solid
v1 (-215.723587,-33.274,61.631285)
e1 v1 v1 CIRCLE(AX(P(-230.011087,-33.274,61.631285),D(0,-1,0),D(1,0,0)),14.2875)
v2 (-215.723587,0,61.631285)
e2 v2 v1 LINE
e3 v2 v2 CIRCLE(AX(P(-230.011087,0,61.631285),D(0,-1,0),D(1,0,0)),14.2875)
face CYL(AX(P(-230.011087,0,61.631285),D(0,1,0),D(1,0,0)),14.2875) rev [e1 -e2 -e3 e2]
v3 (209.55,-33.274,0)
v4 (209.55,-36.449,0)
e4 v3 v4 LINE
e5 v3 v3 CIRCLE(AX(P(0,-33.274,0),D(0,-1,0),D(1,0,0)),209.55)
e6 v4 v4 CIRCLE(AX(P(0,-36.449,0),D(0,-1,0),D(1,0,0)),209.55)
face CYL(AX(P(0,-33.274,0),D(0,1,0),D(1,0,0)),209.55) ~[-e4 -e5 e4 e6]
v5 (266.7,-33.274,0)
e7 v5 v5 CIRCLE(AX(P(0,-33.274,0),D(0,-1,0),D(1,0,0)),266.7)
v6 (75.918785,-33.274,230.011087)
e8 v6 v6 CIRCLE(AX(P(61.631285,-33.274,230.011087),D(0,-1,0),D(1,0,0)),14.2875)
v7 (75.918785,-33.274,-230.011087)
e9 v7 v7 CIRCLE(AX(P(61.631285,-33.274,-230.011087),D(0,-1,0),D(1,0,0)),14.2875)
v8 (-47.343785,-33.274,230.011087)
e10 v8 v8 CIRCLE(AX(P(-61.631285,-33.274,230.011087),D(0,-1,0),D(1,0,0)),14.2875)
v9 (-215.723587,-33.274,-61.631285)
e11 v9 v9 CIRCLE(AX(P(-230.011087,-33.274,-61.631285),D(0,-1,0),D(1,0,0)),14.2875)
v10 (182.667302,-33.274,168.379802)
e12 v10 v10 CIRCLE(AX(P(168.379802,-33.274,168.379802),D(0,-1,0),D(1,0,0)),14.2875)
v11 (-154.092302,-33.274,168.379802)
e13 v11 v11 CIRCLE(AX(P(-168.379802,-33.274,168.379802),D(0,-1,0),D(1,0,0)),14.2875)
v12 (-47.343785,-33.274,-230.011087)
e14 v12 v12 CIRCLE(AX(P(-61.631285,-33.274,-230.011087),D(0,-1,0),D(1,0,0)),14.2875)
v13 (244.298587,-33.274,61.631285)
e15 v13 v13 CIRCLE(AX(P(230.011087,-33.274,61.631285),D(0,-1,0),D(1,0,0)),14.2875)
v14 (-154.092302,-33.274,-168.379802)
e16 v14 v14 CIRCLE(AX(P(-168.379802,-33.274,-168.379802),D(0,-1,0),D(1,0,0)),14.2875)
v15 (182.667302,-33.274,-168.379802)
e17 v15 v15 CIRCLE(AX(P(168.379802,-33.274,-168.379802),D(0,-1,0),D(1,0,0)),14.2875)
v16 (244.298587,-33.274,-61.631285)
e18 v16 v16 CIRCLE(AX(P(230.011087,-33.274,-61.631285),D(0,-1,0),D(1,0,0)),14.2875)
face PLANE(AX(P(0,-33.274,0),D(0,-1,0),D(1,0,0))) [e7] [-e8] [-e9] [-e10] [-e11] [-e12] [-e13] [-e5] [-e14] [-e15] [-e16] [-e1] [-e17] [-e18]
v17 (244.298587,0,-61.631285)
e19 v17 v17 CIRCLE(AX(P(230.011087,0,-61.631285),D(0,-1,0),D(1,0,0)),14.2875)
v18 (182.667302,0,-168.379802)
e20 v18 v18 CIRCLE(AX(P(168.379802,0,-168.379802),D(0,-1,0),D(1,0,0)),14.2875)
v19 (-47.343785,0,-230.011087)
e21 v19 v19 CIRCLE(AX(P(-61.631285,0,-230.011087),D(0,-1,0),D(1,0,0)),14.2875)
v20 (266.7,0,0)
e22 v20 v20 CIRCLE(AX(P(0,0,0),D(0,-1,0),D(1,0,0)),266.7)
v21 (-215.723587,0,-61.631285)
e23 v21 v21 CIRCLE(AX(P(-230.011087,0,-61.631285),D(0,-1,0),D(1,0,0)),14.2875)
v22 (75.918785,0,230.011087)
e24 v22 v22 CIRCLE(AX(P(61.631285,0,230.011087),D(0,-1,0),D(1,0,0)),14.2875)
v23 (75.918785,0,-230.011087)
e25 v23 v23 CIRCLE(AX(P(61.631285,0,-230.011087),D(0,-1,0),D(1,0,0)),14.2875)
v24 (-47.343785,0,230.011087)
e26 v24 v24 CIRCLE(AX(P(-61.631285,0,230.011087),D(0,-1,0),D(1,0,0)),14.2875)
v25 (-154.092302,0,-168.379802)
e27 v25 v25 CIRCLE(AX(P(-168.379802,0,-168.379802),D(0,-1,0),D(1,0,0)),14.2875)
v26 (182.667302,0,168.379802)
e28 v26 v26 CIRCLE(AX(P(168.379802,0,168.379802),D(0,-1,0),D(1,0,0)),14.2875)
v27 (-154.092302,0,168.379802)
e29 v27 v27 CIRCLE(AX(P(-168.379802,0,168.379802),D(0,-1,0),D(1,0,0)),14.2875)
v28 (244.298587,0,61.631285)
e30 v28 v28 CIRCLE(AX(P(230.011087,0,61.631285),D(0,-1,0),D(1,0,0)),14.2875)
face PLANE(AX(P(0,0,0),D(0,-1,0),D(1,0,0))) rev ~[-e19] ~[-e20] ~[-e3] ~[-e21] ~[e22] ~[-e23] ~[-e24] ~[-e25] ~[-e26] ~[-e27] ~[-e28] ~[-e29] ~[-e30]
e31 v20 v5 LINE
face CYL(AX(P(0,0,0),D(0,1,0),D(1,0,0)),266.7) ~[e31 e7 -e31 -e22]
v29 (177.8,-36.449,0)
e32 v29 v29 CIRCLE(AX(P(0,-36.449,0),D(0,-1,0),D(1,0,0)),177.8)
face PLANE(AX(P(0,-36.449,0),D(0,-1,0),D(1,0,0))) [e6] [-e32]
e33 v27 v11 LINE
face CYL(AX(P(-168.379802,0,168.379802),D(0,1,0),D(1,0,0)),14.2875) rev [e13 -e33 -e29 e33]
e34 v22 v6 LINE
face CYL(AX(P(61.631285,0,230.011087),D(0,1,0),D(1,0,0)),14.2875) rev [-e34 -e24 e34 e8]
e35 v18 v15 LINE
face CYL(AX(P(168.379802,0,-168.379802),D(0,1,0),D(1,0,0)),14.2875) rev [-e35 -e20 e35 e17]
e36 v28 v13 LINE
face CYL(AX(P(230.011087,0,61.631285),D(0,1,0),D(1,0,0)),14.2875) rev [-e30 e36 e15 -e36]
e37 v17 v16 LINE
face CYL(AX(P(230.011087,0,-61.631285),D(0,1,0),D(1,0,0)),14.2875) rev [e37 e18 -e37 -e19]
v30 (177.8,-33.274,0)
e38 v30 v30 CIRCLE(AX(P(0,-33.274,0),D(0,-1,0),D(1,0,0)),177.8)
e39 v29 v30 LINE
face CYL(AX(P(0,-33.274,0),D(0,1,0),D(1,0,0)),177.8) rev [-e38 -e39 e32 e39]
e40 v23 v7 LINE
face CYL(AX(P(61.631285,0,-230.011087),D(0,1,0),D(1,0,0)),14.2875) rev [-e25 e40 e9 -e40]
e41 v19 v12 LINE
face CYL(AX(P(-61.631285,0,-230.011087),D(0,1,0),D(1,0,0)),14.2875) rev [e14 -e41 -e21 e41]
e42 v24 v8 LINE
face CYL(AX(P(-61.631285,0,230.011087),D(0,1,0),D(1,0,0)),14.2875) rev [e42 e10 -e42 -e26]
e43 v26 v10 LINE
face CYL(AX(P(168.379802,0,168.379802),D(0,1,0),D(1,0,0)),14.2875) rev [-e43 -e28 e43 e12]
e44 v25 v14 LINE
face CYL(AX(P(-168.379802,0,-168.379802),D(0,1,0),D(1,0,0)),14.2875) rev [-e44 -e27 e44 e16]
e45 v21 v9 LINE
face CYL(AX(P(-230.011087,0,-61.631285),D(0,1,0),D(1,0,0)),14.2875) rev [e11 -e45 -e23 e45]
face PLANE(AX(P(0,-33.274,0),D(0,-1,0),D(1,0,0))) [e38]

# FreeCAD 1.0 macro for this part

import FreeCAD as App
import Part
import Sketcher

V = App.Vector
Q = App.Units.Quantity

doc = App.newDocument("Part")
params = doc.addObject("Spreadsheet::Sheet", "Params")
for row, (alias, value) in enumerate([
    ("sketch1_diameter", "21 in"),
    ("sketch1_diameter2", "14 in"),
    ("sketch1_diameter3", "1.125 in"),
    ("pad1_length", "1.31 in"),
    ("sketch2_diameter", "14 in"),
    ("sketch2_diameter2", "16.5 in"),
    ("pad2_length", "0.125 in"),
    ("sketch3_diameter", "14 in"),
    ("pad3_length", "1.31 in"),
], start=1):
    params.set(f"A{row}", alias)
    params.set(f"B{row}", "=" + value)
    params.setAlias(f"B{row}", alias)

body = doc.addObject("PartDesign::Body", "Body")

sketch1 = body.newObject("Sketcher::SketchObject", "Sketch")
sketch1.AttachmentSupport = (doc.getObject("XZ_Plane"), [""])
sketch1.MapMode = "FlatFace"
sketch1.addGeometry([
    Part.Circle(V(0, 0, 0), V(0, 0, 1), 266.7),
    Part.Circle(V(-168.379802, -168.379802, 0), V(0, 0, 1), 14.2875),
    Part.Circle(V(-61.631285, -230.011087, 0), V(0, 0, 1), 14.2875),
    Part.Circle(V(-230.011087, -61.631285, 0), V(0, 0, 1), 14.2875),
    Part.Circle(V(0, 0, 0), V(0, 0, 1), 177.8),
    Part.Circle(V(61.631285, -230.011087, 0), V(0, 0, 1), 14.2875),
    Part.Circle(V(168.379802, -168.379802, 0), V(0, 0, 1), 14.2875),
    Part.Circle(V(230.011087, -61.631285, 0), V(0, 0, 1), 14.2875),
    Part.Circle(V(-230.011087, 61.631285, 0), V(0, 0, 1), 14.2875),
    Part.Circle(V(-168.379802, 168.379802, 0), V(0, 0, 1), 14.2875),
    Part.Circle(V(-61.631285, 230.011087, 0), V(0, 0, 1), 14.2875),
    Part.Circle(V(230.011087, 61.631285, 0), V(0, 0, 1), 14.2875),
    Part.Circle(V(61.631285, 230.011087, 0), V(0, 0, 1), 14.2875),
    Part.Circle(V(168.379802, 168.379802, 0), V(0, 0, 1), 14.2875),
], False)
sketch1.addConstraint([
    Sketcher.Constraint("Coincident", 0, 3, -1, 1),
    Sketcher.Constraint("Coincident", 4, 3, -1, 1),
    Sketcher.Constraint("Equal", 1, 2),
    Sketcher.Constraint("Equal", 2, 3),
    Sketcher.Constraint("Equal", 3, 5),
    Sketcher.Constraint("Equal", 5, 6),
    Sketcher.Constraint("Equal", 6, 7),
    Sketcher.Constraint("Equal", 7, 8),
    Sketcher.Constraint("Equal", 8, 9),
    Sketcher.Constraint("Equal", 9, 10),
    Sketcher.Constraint("Equal", 10, 11),
    Sketcher.Constraint("Equal", 11, 12),
    Sketcher.Constraint("Equal", 12, 13),
    Sketcher.Constraint("Symmetric", 7, 3, 8, 3, -1, 1),
    Sketcher.Constraint("Symmetric", 6, 3, 9, 3, -1, 1),
    Sketcher.Constraint("Symmetric", 5, 3, 10, 3, -1, 1),
    Sketcher.Constraint("Symmetric", 3, 3, 11, 3, -1, 1),
    Sketcher.Constraint("Symmetric", 2, 3, 12, 3, -1, 1),
    Sketcher.Constraint("Symmetric", 1, 3, 13, 3, -1, 1),
    Sketcher.Constraint("Symmetric", 2, 3, 5, 3, -2),
    Sketcher.Constraint("Symmetric", 1, 3, 6, 3, -2),
    Sketcher.Constraint("Symmetric", 3, 3, 7, 3, -2),
    Sketcher.Constraint("Diameter", 0, Q("21 in")),
    Sketcher.Constraint("Diameter", 4, Q("14 in")),
    Sketcher.Constraint("Diameter", 1, Q("1.125 in")),
    Sketcher.Constraint("DistanceX", 2, 3, 5, 3, Q("123.26257 mm")),
    Sketcher.Constraint("DistanceX", 3, 3, 5, 3, Q("291.642372 mm")),
    Sketcher.Constraint("DistanceY", 3, 3, 8, 3, Q("123.26257 mm")),
    Sketcher.Constraint("DistanceY", 2, 3, 8, 3, Q("291.642372 mm")),
    Sketcher.Constraint("DistanceX", 1, 3, -1, 1, Q("168.379802 mm")),
    Sketcher.Constraint("DistanceY", 1, 3, -1, 1, Q("168.379802 mm")),
])
sketch1.setExpression("Constraints[22]", "Params.sketch1_diameter")
sketch1.setExpression("Constraints[23]", "Params.sketch1_diameter2")
sketch1.setExpression("Constraints[24]", "Params.sketch1_diameter3")
pad1 = body.newObject("PartDesign::Pad", "Pad")
pad1.Profile = sketch1
pad1.setExpression("Length", "Params.pad1_length")

sketch2 = body.newObject("Sketcher::SketchObject", "Sketch001")
sketch2.AttachmentSupport = (doc.getObject("XZ_Plane"), [""])
sketch2.MapMode = "FlatFace"
sketch2.AttachmentOffset = App.Placement(V(0, 0, 1.31 * 25.4), App.Rotation())
sketch2.addGeometry([
    Part.Circle(V(0, 0, 0), V(0, 0, 1), 209.55),
    Part.Circle(V(0, 0, 0), V(0, 0, 1), 177.8),
], False)
sketch2.addConstraint([
    Sketcher.Constraint("Coincident", 0, 3, -1, 1),
    Sketcher.Constraint("Coincident", 1, 3, -1, 1),
    Sketcher.Constraint("Diameter", 1, Q("14 in")),
    Sketcher.Constraint("Diameter", 0, Q("16.5 in")),
])
sketch2.setExpression("Constraints[2]", "Params.sketch2_diameter")
sketch2.setExpression("Constraints[3]", "Params.sketch2_diameter2")
pad2 = body.newObject("PartDesign::Pad", "Pad001")
pad2.Profile = sketch2
pad2.setExpression("Length", "Params.pad2_length")

sketch3 = body.newObject("Sketcher::SketchObject", "Sketch002")
sketch3.AttachmentSupport = (doc.getObject("XZ_Plane"), [""])
sketch3.MapMode = "FlatFace"
sketch3.AttachmentOffset = App.Placement(V(0, 0, 1.31 * 25.4), App.Rotation())
sketch3.addGeometry(Part.Circle(V(0, 0, 0), V(0, 0, 1), 177.8), False)
sketch3.addConstraint([
    Sketcher.Constraint("Coincident", 0, 3, -1, 1),
    Sketcher.Constraint("Diameter", 0, Q("14 in")),
])
sketch3.setExpression("Constraints[1]", "Params.sketch3_diameter")
pad3 = body.newObject("PartDesign::Pad", "Pad002")
pad3.Profile = sketch3
pad3.setExpression("Length", "Params.pad3_length")
pad3.Reversed = True

doc.recompute()
